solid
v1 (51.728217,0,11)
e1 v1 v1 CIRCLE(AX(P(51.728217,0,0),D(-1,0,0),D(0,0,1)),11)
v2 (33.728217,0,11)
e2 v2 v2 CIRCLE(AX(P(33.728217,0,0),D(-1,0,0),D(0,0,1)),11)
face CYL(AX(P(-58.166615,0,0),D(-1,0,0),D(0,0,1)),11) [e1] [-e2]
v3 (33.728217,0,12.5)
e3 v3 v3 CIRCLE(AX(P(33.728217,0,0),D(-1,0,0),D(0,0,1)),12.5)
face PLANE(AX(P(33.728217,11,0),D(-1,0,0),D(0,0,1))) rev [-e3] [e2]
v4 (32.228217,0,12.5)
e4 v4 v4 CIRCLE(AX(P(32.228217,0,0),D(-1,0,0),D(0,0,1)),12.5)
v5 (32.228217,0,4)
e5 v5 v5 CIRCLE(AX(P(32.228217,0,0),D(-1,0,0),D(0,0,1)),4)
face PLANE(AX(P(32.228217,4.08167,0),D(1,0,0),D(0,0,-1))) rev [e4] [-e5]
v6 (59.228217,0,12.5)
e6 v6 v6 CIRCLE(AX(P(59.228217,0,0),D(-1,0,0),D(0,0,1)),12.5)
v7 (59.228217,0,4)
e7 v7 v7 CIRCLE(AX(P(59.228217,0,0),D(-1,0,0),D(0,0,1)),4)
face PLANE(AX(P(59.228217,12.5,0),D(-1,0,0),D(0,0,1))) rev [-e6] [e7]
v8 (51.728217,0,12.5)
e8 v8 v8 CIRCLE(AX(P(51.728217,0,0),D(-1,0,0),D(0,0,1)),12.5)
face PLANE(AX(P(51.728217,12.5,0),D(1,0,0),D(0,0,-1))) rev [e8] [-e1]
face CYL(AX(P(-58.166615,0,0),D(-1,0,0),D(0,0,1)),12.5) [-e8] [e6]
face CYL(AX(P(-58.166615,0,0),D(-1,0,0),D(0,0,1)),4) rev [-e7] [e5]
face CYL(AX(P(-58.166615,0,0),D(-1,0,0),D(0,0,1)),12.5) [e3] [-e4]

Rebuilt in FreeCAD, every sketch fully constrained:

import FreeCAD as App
import Part
import Sketcher
Q = App.Units.Quantity


def add_polygon(sketch, points):
    """Adds a closed chain of lines whose ends are joined by coincident constraints."""
    first, n = sketch.GeometryCount, len(points)
    for a, b in zip(points, points[1:] + points[:1]):
        sketch.addGeometry(Part.LineSegment(App.Vector(*a, 0), App.Vector(*b, 0)), False)
    for i in range(n):
        sketch.addConstraint(Sketcher.Constraint("Coincident", first + i, 2, first + (i + 1) % n, 1))

doc = App.newDocument("Part")
body = doc.addObject("PartDesign::Body", "Body")

# Sketch on XY plane
sketch1 = body.newObject("Sketcher::SketchObject", "Sketch")
sketch1.AttachmentSupport = (doc.getObject("XY_Plane"), [""])
sketch1.MapMode = "FlatFace"
add_polygon(sketch1, [(59.2, 12.5), (51.7, 12.5), (51.7, 11), (33.7, 11), (33.7, 12.5), (32.2, 12.5), (32.2, 4), (59.2, 4)])  # lines 0-7
sketch1.addConstraint(Sketcher.Constraint("Horizontal", 0))
sketch1.addConstraint(Sketcher.Constraint("Vertical", 1))
sketch1.addConstraint(Sketcher.Constraint("Horizontal", 2))
sketch1.addConstraint(Sketcher.Constraint("Vertical", 3))
sketch1.addConstraint(Sketcher.Constraint("Horizontal", 4))
sketch1.addConstraint(Sketcher.Constraint("Vertical", 5))
sketch1.addConstraint(Sketcher.Constraint("Horizontal", 6))
sketch1.addConstraint(Sketcher.Constraint("Vertical", 7))
sketch1.addConstraint(Sketcher.Constraint("Horizontal", 0, 2, 3, 2))
sketch1.addConstraint(Sketcher.Constraint("Equal", 4, 1))
sketch1.addConstraint(Sketcher.Constraint("DistanceX", 2, 2, 2, 1, Q("18 mm")))
sketch1.addConstraint(Sketcher.Constraint("DistanceX", 6, 1, 6, 2, Q("27 mm")))
sketch1.addConstraint(Sketcher.Constraint("DistanceX", 0, 2, 0, 1, Q("7.5 mm")))
sketch1.addConstraint(Sketcher.Constraint("DistanceY", 5, 2, 5, 1, Q("8.5 mm")))
sketch1.addConstraint(Sketcher.Constraint("DistanceY", -1, 1, 1, 2, Q("11 mm")))
sketch1.addConstraint(Sketcher.Constraint("DistanceX", -1, 1, 0, 2, Q("51.728217 mm")))
revolution = body.newObject("PartDesign::Revolution", "Revolution")
revolution.Profile = sketch1
revolution.ReferenceAxis = (sketch1, ["H_Axis"])
revolution.Angle = 360

doc.recompute()
